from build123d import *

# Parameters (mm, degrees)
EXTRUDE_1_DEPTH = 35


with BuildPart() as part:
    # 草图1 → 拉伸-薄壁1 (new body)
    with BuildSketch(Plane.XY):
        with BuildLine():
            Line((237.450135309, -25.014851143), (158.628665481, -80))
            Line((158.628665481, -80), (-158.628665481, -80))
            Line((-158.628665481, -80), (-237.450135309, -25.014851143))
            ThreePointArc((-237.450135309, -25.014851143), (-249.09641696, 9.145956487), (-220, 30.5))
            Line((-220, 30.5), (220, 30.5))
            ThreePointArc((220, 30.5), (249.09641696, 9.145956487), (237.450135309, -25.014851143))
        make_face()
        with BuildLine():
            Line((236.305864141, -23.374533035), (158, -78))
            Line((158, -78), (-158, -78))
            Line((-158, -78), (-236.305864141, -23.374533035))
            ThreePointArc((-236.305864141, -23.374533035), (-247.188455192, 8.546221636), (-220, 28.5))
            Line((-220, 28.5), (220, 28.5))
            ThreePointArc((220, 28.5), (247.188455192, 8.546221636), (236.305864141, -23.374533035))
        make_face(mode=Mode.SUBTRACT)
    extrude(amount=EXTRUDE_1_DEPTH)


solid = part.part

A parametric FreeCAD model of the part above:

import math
import FreeCAD as App
import Part
import Sketcher
Q = App.Units.Quantity

doc = App.newDocument("Part")
body = doc.addObject("PartDesign::Body", "Body")

# Sketch on XY plane
sketch1 = body.newObject("Sketcher::SketchObject", "Sketch")
sketch1.AttachmentSupport = (doc.getObject("XY_Plane"), [""])
sketch1.MapMode = "FlatFace"
sketch1.addGeometry(Part.LineSegment(App.Vector(159, -80, 0), App.Vector(237, -25, 0)), False)
sketch1.addGeometry(Part.ArcOfCircle(Part.Circle(App.Vector(220, 0, 0), App.Vector(0, 0, 1), 30), math.radians(-55), math.radians(90)), False)
sketch1.addGeometry(Part.LineSegment(App.Vector(220, 30, 0), App.Vector(-220, 30, 0)), False)
sketch1.addGeometry(Part.ArcOfCircle(Part.Circle(App.Vector(-220, 0, 0), App.Vector(0, 0, 1), 30), math.radians(90), math.radians(235)), False)
sketch1.addGeometry(Part.LineSegment(App.Vector(-237, -25, 0), App.Vector(-159, -80, 0)), False)
sketch1.addGeometry(Part.LineSegment(App.Vector(-159, -80, 0), App.Vector(159, -80, 0)), False)
sketch1.addGeometry(Part.LineSegment(App.Vector(236, -23, 0), App.Vector(158, -78, 0)), False)
sketch1.addGeometry(Part.LineSegment(App.Vector(158, -78, 0), App.Vector(-158, -78, 0)), False)
sketch1.addGeometry(Part.LineSegment(App.Vector(-158, -78, 0), App.Vector(-236, -23, 0)), False)
sketch1.addGeometry(Part.ArcOfCircle(Part.Circle(App.Vector(-220, 0, 0), App.Vector(0, 0, 1), 28), math.radians(90), math.radians(235)), False)
sketch1.addGeometry(Part.LineSegment(App.Vector(-220, 28, 0), App.Vector(220, 28, 0)), False)
sketch1.addGeometry(Part.ArcOfCircle(Part.Circle(App.Vector(220, 0, 0), App.Vector(0, 0, 1), 28), math.radians(-55), math.radians(90)), False)
sketch1.addConstraint(Sketcher.Constraint("Tangent", 0, 2, 1, 1))
sketch1.addConstraint(Sketcher.Constraint("Tangent", 1, 2, 2, 1))
sketch1.addConstraint(Sketcher.Constraint("Tangent", 2, 2, 3, 1))
sketch1.addConstraint(Sketcher.Constraint("Tangent", 3, 2, 4, 1))
sketch1.addConstraint(Sketcher.Constraint("Coincident", 4, 2, 5, 1))
sketch1.addConstraint(Sketcher.Constraint("Coincident", 5, 2, 0, 1))
sketch1.addConstraint(Sketcher.Constraint("Coincident", 6, 2, 7, 1))
sketch1.addConstraint(Sketcher.Constraint("Coincident", 7, 2, 8, 1))
sketch1.addConstraint(Sketcher.Constraint("Tangent", 8, 2, 9, 2))
sketch1.addConstraint(Sketcher.Constraint("Tangent", 9, 1, 10, 1))
sketch1.addConstraint(Sketcher.Constraint("Tangent", 10, 2, 11, 2))
sketch1.addConstraint(Sketcher.Constraint("Tangent", 11, 1, 6, 1))
sketch1.addConstraint(Sketcher.Constraint("Horizontal", 2))
sketch1.addConstraint(Sketcher.Constraint("Horizontal", 5))
sketch1.addConstraint(Sketcher.Constraint("Horizontal", 7))
sketch1.addConstraint(Sketcher.Constraint("Horizontal", 10))
sketch1.addConstraint(Sketcher.Constraint("Coincident", 9, 3, 3, 3))
sketch1.addConstraint(Sketcher.Constraint("Coincident", 11, 3, 1, 3))
sketch1.addConstraint(Sketcher.Constraint("Equal", 1, 3))
sketch1.addConstraint(Sketcher.Constraint("Symmetric", 1, 3, 3, 3, -1, 1))
sketch1.addConstraint(Sketcher.Constraint("Parallel", 0, 6))
sketch1.addConstraint(Sketcher.Constraint("Parallel", 4, 8))
sketch1.addConstraint(Sketcher.Constraint("Horizontal", 0, 2, 3, 2))
sketch1.addConstraint(Sketcher.Constraint("Radius", 1, Q("30.5 mm")))
sketch1.addConstraint(Sketcher.Constraint("Radius", 9, Q("28.5 mm")))
sketch1.addConstraint(Sketcher.Constraint("DistanceX", 2, 2, 2, 1, Q("440 mm")))
sketch1.addConstraint(Sketcher.Constraint("DistanceX", 7, 2, 7, 1, Q("316 mm")))
sketch1.addConstraint(Sketcher.Constraint("DistanceY", 4, 2, -1, 1, Q("80 mm")))
sketch1.addConstraint(Sketcher.Constraint("DistanceY", 6, 2, -1, 1, Q("78 mm")))
pad1 = body.newObject("PartDesign::Pad", "Pad")
pad1.Profile = sketch1
pad1.Length = 35

doc.recompute()
